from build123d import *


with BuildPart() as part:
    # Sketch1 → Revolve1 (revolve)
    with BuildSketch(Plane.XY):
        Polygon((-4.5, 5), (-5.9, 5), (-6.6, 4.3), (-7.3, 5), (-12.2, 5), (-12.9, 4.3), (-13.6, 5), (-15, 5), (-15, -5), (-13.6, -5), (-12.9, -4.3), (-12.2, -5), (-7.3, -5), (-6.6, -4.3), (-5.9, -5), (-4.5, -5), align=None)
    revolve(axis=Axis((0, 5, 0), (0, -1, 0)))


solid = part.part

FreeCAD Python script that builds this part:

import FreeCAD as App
import Part
import Sketcher
from FreeCAD import Vector
Q = App.Units.Quantity


def add_polygon(sketch, points):
    """Adds a closed chain of lines whose ends are joined by coincident constraints."""
    first, n = sketch.GeometryCount, len(points)
    for a, b in zip(points, points[1:] + points[:1]):
        sketch.addGeometry(Part.LineSegment(App.Vector(*a, 0), App.Vector(*b, 0)), False)
    for i in range(n):
        sketch.addConstraint(Sketcher.Constraint("Coincident", first + i, 2, first + (i + 1) % n, 1))

doc = App.newDocument("Part")
body = doc.addObject("PartDesign::Body", "Body")

# Sketch on XY plane
sketch1 = body.newObject("Sketcher::SketchObject", "Sketch")
sketch1.AttachmentSupport = (doc.getObject("XY_Plane"), [""])
sketch1.MapMode = "FlatFace"
add_polygon(sketch1, [(-4.5, 5), (-5.9, 5), (-6.6, 4.3), (-7.3, 5), (-12.2, 5), (-12.9, 4.3), (-13.6, 5), (-15, 5), (-15, -5), (-13.6, -5), (-12.9, -4.3), (-12.2, -5), (-7.3, -5), (-6.6, -4.3), (-5.9, -5), (-4.5, -5)])  # lines 0-15
sketch1.addConstraint([
    Sketcher.Constraint("Horizontal", 0),
    Sketcher.Constraint("Horizontal", 3),
    Sketcher.Constraint("Horizontal", 6),
    Sketcher.Constraint("Vertical", 7),
    Sketcher.Constraint("Horizontal", 8),
    Sketcher.Constraint("Horizontal", 11),
    Sketcher.Constraint("Horizontal", 14),
    Sketcher.Constraint("Vertical", 15),
    Sketcher.Constraint("Symmetric", 5, 2, 8, 2, -1),
    Sketcher.Constraint("Symmetric", 4, 2, 9, 2, -1),
    Sketcher.Constraint("Symmetric", 3, 2, 10, 2, -1),
    Sketcher.Constraint("Symmetric", 1, 2, 12, 2, -1),
    Sketcher.Constraint("Symmetric", 0, 2, 13, 2, -1),
    Sketcher.Constraint("Perpendicular", 1, 2),
    Sketcher.Constraint("Perpendicular", 2, 4),
    Sketcher.Constraint("Perpendicular", 4, 5),
    Sketcher.Constraint("Perpendicular", 5, 9),
    Sketcher.Constraint("Perpendicular", 10, 12),
    Sketcher.Constraint("Horizontal", 0, 2, 2, 2),
    Sketcher.Constraint("Horizontal", 1, 2, 4, 2),
    Sketcher.Constraint("Horizontal", 3, 2, 5, 2),
    Sketcher.Constraint("Equal", 0, 6),
    Sketcher.Constraint("DistanceY", 7, 2, 7, 1, Q("10 mm")),
    Sketcher.Constraint("DistanceX", 0, 2, 0, 1, Q("1.4 mm")),
    Sketcher.Constraint("DistanceX", 3, 2, 3, 1, Q("4.9 mm")),
    Sketcher.Constraint("DistanceX", 6, 2, -1, 1, Q("15 mm")),
    Sketcher.Constraint("DistanceX", 4, 2, 0, 2, Q("7 mm")),
])
revolution = body.newObject("PartDesign::Revolution", "Revolution")
revolution.Profile = sketch1
revolution.ReferenceAxis = (sketch1, ["V_Axis"])
revolution.Angle = 360

doc.recompute()
